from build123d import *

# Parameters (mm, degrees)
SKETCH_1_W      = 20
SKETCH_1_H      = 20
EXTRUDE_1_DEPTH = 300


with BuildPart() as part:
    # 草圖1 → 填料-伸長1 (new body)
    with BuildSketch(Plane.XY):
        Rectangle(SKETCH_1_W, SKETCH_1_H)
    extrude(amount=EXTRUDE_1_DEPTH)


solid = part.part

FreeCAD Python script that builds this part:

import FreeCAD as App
import Part
import Sketcher
from FreeCAD import Vector

doc = App.newDocument("Part")
body = doc.addObject("PartDesign::Body", "Body")

# Sketch on XY plane
sketch1 = doc.addObject("Sketcher::SketchObject", "Sketch")
body.addObject(sketch1)
sketch1.AttachmentSupport = (doc.XY_Plane, [""])
sketch1.MapMode = "FlatFace"
sketch1.addGeometry([
    Part.LineSegment(Vector(-10, 10, 0), Vector(-10, -10, 0)),
    Part.LineSegment(Vector(-10, -10, 0), Vector(10, -10, 0)),
    Part.LineSegment(Vector(10, -10, 0), Vector(10, 10, 0)),
    Part.LineSegment(Vector(10, 10, 0), Vector(-10, 10, 0)),
], False)
sketch1.addConstraint([
    Sketcher.Constraint("Coincident", 0, 2, 1, 1),
    Sketcher.Constraint("Coincident", 1, 2, 2, 1),
    Sketcher.Constraint("Coincident", 2, 2, 3, 1),
    Sketcher.Constraint("Coincident", 3, 2, 0, 1),
    Sketcher.Constraint("Vertical", 0),
    Sketcher.Constraint("Horizontal", 1),
    Sketcher.Constraint("Vertical", 2),
    Sketcher.Constraint("Horizontal", 3),
    Sketcher.Constraint("Symmetric", 0, 2, 2, 2, -1, 1),
    Sketcher.Constraint("Equal", 3, 0),
    Sketcher.Constraint("DistanceX", 1, 1, 1, 2, 20.0),
])
pad1 = doc.addObject("PartDesign::Pad", "Pad")
body.addObject(pad1)
pad1.Profile = sketch1
pad1.Length = 300

doc.recompute()
